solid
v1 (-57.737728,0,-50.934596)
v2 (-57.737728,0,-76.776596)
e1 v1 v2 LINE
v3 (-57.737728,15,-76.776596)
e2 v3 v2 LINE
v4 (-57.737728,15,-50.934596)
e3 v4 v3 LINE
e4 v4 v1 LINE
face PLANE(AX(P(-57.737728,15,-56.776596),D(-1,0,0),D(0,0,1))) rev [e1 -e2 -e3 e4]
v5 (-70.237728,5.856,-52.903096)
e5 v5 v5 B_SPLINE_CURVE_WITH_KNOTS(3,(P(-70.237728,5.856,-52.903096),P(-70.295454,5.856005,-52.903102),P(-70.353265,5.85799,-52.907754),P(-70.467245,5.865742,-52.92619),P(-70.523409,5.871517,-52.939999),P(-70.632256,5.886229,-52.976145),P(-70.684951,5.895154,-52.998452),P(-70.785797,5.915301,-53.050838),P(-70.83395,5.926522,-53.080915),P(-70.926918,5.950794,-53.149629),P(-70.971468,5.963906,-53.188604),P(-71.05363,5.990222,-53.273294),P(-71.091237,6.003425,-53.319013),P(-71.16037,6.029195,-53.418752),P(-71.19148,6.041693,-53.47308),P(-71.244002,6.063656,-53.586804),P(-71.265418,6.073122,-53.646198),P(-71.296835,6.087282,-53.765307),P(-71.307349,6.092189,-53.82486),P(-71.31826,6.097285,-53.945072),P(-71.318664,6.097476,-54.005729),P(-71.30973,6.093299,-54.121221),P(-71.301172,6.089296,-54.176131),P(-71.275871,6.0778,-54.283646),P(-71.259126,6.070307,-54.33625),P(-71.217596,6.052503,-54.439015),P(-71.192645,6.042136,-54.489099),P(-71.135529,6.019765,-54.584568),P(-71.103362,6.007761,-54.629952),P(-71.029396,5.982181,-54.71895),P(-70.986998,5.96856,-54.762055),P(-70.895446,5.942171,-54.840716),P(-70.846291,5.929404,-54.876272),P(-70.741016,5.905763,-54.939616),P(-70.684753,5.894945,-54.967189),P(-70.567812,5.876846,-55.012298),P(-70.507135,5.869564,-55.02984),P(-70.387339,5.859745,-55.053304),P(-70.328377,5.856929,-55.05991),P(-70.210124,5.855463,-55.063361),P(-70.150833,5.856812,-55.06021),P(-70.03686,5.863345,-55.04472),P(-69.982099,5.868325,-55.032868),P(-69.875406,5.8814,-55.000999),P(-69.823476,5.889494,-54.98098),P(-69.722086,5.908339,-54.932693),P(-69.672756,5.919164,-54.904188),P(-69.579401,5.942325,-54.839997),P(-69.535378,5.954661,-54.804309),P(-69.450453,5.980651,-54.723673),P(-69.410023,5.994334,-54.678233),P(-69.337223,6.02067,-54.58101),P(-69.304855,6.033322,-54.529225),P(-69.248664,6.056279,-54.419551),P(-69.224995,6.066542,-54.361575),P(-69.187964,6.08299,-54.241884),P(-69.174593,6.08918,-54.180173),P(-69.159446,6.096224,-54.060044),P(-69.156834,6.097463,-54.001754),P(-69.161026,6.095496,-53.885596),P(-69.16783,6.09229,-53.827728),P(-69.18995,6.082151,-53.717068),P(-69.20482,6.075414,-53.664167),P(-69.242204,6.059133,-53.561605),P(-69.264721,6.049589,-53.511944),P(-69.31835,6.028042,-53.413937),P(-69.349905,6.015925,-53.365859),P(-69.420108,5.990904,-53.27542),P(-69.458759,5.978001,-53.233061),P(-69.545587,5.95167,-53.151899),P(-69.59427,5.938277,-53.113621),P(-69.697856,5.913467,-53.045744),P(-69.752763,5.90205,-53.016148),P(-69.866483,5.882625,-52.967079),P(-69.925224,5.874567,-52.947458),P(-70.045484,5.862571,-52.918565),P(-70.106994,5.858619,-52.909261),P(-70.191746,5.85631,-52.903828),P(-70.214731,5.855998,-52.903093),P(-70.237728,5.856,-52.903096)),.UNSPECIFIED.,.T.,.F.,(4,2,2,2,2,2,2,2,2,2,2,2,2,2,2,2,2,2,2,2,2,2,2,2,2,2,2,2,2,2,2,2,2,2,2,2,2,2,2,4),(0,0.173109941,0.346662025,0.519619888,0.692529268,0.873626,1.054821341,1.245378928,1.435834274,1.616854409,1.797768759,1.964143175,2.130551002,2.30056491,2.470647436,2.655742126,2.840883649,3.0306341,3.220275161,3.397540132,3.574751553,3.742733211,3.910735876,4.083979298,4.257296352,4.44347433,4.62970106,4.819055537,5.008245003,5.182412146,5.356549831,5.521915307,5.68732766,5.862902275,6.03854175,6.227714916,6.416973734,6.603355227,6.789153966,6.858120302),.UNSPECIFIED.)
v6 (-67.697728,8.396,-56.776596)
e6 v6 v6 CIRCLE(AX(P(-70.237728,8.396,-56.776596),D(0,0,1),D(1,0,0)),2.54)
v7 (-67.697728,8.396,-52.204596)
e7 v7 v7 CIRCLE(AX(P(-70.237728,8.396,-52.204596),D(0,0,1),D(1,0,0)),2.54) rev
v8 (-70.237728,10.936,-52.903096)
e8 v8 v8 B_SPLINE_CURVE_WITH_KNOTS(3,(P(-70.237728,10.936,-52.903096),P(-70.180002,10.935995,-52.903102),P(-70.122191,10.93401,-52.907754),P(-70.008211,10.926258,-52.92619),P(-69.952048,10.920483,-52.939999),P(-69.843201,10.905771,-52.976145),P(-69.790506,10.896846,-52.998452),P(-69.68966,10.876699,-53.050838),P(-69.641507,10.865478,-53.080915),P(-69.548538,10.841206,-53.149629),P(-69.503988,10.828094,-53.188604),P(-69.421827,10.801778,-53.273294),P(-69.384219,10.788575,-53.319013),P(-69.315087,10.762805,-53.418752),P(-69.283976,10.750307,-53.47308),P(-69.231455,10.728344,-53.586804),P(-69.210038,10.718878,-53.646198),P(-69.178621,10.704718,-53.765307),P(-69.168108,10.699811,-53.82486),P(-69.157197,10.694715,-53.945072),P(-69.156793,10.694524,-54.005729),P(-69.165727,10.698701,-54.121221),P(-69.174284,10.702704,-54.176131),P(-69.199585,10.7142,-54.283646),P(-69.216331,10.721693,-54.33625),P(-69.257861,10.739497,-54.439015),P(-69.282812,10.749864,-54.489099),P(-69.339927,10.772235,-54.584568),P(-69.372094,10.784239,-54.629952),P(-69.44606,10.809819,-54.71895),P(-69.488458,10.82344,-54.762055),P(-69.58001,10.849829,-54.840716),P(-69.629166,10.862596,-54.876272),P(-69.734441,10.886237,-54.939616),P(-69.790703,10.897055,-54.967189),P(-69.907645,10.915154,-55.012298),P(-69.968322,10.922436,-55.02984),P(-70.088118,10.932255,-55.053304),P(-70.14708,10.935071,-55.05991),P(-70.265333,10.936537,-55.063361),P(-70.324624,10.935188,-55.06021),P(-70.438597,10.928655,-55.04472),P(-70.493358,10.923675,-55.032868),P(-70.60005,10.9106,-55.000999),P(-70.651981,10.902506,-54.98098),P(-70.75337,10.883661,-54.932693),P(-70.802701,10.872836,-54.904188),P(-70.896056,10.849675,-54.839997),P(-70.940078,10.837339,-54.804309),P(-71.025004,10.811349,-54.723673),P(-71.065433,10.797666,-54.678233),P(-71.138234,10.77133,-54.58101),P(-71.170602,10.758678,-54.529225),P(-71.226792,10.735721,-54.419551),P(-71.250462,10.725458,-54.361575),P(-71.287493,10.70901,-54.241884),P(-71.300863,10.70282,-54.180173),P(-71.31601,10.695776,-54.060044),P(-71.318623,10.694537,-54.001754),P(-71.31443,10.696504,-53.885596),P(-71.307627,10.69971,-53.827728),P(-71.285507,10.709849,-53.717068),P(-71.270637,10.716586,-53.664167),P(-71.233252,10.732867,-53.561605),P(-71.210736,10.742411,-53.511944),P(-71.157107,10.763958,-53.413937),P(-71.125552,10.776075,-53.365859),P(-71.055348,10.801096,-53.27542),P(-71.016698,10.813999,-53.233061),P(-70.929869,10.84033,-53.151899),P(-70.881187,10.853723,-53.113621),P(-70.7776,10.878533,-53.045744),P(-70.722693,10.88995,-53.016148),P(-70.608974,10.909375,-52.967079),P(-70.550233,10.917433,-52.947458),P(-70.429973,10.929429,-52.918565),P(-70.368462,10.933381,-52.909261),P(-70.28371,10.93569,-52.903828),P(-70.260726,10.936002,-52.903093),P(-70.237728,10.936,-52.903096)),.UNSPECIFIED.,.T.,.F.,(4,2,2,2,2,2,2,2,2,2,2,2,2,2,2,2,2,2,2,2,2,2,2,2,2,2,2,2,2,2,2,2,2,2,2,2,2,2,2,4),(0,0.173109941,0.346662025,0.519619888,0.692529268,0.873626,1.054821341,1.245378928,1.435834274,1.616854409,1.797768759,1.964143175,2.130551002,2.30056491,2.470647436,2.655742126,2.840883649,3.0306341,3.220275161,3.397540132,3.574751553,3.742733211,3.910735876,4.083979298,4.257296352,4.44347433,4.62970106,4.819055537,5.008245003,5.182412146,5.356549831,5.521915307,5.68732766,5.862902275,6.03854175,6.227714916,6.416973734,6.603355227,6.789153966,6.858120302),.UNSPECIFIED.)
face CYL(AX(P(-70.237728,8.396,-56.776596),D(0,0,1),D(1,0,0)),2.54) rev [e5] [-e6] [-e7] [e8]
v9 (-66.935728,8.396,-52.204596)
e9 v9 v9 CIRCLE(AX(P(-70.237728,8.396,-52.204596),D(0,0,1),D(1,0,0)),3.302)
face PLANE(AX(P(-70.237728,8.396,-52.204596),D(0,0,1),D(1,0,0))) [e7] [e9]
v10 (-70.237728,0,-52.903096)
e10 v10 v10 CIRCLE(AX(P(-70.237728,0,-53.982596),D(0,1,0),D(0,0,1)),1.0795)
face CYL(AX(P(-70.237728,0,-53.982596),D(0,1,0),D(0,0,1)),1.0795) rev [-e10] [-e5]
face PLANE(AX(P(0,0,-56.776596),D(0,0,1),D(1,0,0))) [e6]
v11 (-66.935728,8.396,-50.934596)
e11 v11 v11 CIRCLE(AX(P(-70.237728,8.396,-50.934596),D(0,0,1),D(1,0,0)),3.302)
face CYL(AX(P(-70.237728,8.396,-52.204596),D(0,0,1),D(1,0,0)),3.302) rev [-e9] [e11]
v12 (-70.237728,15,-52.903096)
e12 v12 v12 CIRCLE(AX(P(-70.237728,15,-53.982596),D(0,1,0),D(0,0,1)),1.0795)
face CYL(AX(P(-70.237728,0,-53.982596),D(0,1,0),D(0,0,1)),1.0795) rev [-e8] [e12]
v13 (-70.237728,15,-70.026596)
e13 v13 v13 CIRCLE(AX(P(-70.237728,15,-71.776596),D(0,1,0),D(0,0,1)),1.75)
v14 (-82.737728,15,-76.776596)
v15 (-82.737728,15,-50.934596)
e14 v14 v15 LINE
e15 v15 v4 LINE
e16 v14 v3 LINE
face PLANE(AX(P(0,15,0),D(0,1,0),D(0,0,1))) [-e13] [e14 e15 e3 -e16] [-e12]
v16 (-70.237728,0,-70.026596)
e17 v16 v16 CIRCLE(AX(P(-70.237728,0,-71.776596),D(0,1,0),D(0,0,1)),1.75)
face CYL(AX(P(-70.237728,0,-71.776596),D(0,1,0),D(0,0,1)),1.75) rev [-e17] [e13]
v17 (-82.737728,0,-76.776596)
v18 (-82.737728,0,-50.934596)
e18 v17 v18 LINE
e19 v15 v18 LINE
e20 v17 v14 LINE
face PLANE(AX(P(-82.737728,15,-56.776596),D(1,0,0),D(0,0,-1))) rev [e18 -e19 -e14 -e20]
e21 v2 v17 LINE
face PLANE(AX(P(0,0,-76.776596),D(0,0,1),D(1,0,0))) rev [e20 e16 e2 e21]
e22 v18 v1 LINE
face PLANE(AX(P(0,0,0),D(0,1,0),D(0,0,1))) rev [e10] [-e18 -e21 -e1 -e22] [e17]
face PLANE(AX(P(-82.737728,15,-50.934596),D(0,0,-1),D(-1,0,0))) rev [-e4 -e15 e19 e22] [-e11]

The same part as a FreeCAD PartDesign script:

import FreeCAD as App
import Part
import Sketcher
from FreeCAD import Vector
Q = App.Units.Quantity


def add_polygon(sketch, points):
    """Adds a closed chain of lines whose ends are joined by coincident constraints."""
    first, n = sketch.GeometryCount, len(points)
    for a, b in zip(points, points[1:] + points[:1]):
        sketch.addGeometry(Part.LineSegment(App.Vector(*a, 0), App.Vector(*b, 0)), False)
    for i in range(n):
        sketch.addConstraint(Sketcher.Constraint("Coincident", first + i, 2, first + (i + 1) % n, 1))

doc = App.newDocument("Part")
params = doc.addObject("Spreadsheet::Sheet", "Params")
for row, (alias, value) in enumerate([
    ("sketch1_height", "0.23 in"),
    ("pad1_length", "15 mm"),
    ("sketch2_diameter", "0.2 in"),
    ("sketch3_diameter", "0.26 in"),
    ("pocket2_length", "0.05 in"),
    ("sketch4_diameter", "0.085 in"),
    ("pad2_length", "20 mm"),
], start=1):
    params.set(f"A{row}", alias)
    params.set(f"B{row}", "=" + value)
    params.setAlias(f"B{row}", alias)

body = doc.addObject("PartDesign::Body", "Body")

sketch1 = body.newObject("Sketcher::SketchObject", "Sketch")
sketch1.AttachmentSupport = (doc.getObject("XZ_Plane"), [""])
sketch1.MapMode = "FlatFace"
add_polygon(sketch1, [(-83, -57), (-83, -51), (-58, -51), (-58, -57)])
sketch1.addConstraint([
    Sketcher.Constraint("Vertical", 0),
    Sketcher.Constraint("Horizontal", 1),
    Sketcher.Constraint("Vertical", 2),
    Sketcher.Constraint("Horizontal", 3),
    Sketcher.Constraint("DistanceY", 0, 1, 0, 2, Q("0.23 in")),
    Sketcher.Constraint("DistanceX", 1, 1, 1, 2, 25.0),
    Sketcher.Constraint("DistanceX", 0, 2, -1, 1, 82.737728),
    Sketcher.Constraint("DistanceY", 0, 2, -1, 1, 50.934596),
])
sketch1.setExpression("Constraints[8]", "Params.sketch1_height")
pad1 = body.newObject("PartDesign::Pad", "Pad")
pad1.Profile = sketch1
pad1.setExpression("Length", "Params.pad1_length")
pad1.Reversed = True

sketch2 = body.newObject("Sketcher::SketchObject", "Sketch001")
sketch2.AttachmentSupport = (doc.getObject("XY_Plane"), [""])
sketch2.MapMode = "FlatFace"
sketch2.AttachmentOffset = App.Placement(Vector(0, 0, -50.934596), App.Rotation())
sketch2.addGeometry(Part.Circle(Vector(-70.2, 8.4, 0), Vector(0, 0, 1), 2.5), False)
sketch2.addConstraint([
    Sketcher.Constraint("Diameter", 0, Q("0.2 in")),
    Sketcher.Constraint("DistanceY", -1, 1, 0, 3, 8.396),
    Sketcher.Constraint("DistanceX", 0, 3, -1, 1, 70.237728),
])
sketch2.setExpression("Constraints[0]", "Params.sketch2_diameter")
pocket1 = body.newObject("PartDesign::Pocket", "Pocket")
pocket1.Profile = sketch2
pocket1.Type = "ThroughAll"

sketch3 = body.newObject("Sketcher::SketchObject", "Sketch002")
sketch3.AttachmentSupport = (doc.getObject("XY_Plane"), [""])
sketch3.MapMode = "FlatFace"
sketch3.AttachmentOffset = App.Placement(Vector(0, 0, -50.934596), App.Rotation())
sketch3.addGeometry(Part.Circle(Vector(-70.2, 8.4, 0), Vector(0, 0, 1), 3.3), False)
sketch3.addConstraint([
    Sketcher.Constraint("Diameter", 0, Q("0.26 in")),
    Sketcher.Constraint("DistanceY", -1, 1, 0, 3, 8.396),
    Sketcher.Constraint("DistanceX", 0, 3, -1, 1, 70.237728),
])
sketch3.setExpression("Constraints[0]", "Params.sketch3_diameter")
pocket2 = body.newObject("PartDesign::Pocket", "Pocket001")
pocket2.Profile = sketch3
pocket2.setExpression("Length", "Params.pocket2_length")

sketch4 = body.newObject("Sketcher::SketchObject", "Sketch003")
sketch4.AttachmentSupport = (doc.getObject("XZ_Plane"), [""])
sketch4.MapMode = "FlatFace"
sketch4.AttachmentOffset = App.Placement(Vector(0, 0, -15), App.Rotation())
sketch4.addGeometry(Part.Circle(Vector(-70.2, -54, 0), Vector(0, 0, 1), 1.1), False)
sketch4.addConstraint([
    Sketcher.Constraint("Diameter", 0, Q("0.085 in")),
    Sketcher.Constraint("DistanceX", 0, 3, -1, 1, 70.237728),
    Sketcher.Constraint("DistanceY", 0, 3, -1, 1, 53.982596),
])
sketch4.setExpression("Constraints[0]", "Params.sketch4_diameter")
pocket3 = body.newObject("PartDesign::Pocket", "Pocket002")
pocket3.Profile = sketch4
pocket3.Type = "ThroughAll"
pocket3.Reversed = True

sketch5 = body.newObject("Sketcher::SketchObject", "Sketch004")
sketch5.AttachmentSupport = (doc.getObject("XY_Plane"), [""])
sketch5.MapMode = "FlatFace"
sketch5.AttachmentOffset = App.Placement(Vector(0, 0, -56.776596), App.Rotation())
add_polygon(sketch5, [(-58, 15), (-58, 0), (-83, 0), (-83, 15)])
sketch5.addConstraint([
    Sketcher.Constraint("Vertical", 0),
    Sketcher.Constraint("Horizontal", 1),
    Sketcher.Constraint("Vertical", 2),
    Sketcher.Constraint("Horizontal", 3),
    Sketcher.Constraint("PointOnObject", 0, 2, -1),
    Sketcher.Constraint("DistanceX", 1, 2, 1, 1, 25.0),
    Sketcher.Constraint("DistanceY", 0, 2, 0, 1, 15.0),
    Sketcher.Constraint("DistanceX", 0, 2, -1, 1, 57.737728),
])
pad2 = body.newObject("PartDesign::Pad", "Pad001")
pad2.Profile = sketch5
pad2.setExpression("Length", "Params.pad2_length")
pad2.Reversed = True

sketch6 = body.newObject("Sketcher::SketchObject", "Sketch005")
sketch6.AttachmentSupport = (doc.getObject("XZ_Plane"), [""])
sketch6.MapMode = "FlatFace"
sketch6.AttachmentOffset = App.Placement(Vector(0, 0, -15), App.Rotation())
sketch6.addGeometry(Part.Circle(Vector(-70.2, -71.8, 0), Vector(0, 0, 1), 1.8), False)
sketch6.addConstraint([
    Sketcher.Constraint("Diameter", 0, 3.5),
    Sketcher.Constraint("DistanceX", 0, 3, -1, 1, 70.237728),
    Sketcher.Constraint("DistanceY", 0, 3, -1, 1, 71.776596),
])
pocket4 = body.newObject("PartDesign::Pocket", "Pocket003")
pocket4.Profile = sketch6
pocket4.Type = "ThroughAll"
pocket4.Reversed = True

doc.recompute()
